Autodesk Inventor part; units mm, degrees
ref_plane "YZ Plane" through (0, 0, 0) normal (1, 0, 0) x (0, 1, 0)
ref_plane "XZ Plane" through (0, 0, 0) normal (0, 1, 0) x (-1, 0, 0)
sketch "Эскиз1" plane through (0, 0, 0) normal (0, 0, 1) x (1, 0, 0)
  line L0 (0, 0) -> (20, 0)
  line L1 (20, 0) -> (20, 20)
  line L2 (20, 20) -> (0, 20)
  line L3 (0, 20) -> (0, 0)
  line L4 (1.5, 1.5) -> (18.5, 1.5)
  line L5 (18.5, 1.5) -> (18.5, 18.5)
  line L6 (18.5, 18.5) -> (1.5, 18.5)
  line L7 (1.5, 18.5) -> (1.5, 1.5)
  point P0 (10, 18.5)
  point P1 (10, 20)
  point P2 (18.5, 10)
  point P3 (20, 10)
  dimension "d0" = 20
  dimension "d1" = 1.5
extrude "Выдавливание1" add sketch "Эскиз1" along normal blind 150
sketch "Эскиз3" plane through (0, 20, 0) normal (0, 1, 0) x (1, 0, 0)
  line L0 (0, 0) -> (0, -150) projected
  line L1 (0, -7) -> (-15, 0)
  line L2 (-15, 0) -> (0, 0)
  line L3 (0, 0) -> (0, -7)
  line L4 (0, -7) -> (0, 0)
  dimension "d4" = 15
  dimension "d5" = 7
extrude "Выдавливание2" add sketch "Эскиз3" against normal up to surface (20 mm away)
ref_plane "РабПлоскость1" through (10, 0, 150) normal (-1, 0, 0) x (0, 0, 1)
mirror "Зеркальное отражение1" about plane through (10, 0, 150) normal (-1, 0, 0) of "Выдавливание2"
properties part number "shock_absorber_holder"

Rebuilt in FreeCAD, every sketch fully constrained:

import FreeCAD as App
import Part
import Sketcher
from FreeCAD import Vector
Q = App.Units.Quantity

doc = App.newDocument("Part")
body = doc.addObject("PartDesign::Body", "Body")

# Sketch on XY plane
sketch1 = body.newObject("Sketcher::SketchObject", "Sketch")
sketch1.AttachmentSupport = (doc.getObject("XY_Plane"), [""])
sketch1.MapMode = "FlatFace"
sketch1.addGeometry([
    Part.LineSegment(Vector(0, 20, 0), Vector(0, 0, 0)),  # 0
    Part.LineSegment(Vector(0, 0, 0), Vector(20, 0, 0)),  # 1
    Part.LineSegment(Vector(20, 0, 0), Vector(20, 20, 0)),  # 2
    Part.LineSegment(Vector(20, 20, 0), Vector(0, 20, 0)),  # 3
    Part.LineSegment(Vector(18.5, 1.5, 0), Vector(1.5, 1.5, 0)),  # 4
    Part.LineSegment(Vector(1.5, 1.5, 0), Vector(1.5, 18.5, 0)),  # 5
    Part.LineSegment(Vector(1.5, 18.5, 0), Vector(18.5, 18.5, 0)),  # 6
    Part.LineSegment(Vector(18.5, 18.5, 0), Vector(18.5, 1.5, 0)),  # 7
], False)
sketch1.addConstraint([
    Sketcher.Constraint("Coincident", 0, 2, 1, 1),
    Sketcher.Constraint("Coincident", 1, 2, 2, 1),
    Sketcher.Constraint("Coincident", 2, 2, 3, 1),
    Sketcher.Constraint("Coincident", 3, 2, 0, 1),
    Sketcher.Constraint("Coincident", 4, 2, 5, 1),
    Sketcher.Constraint("Coincident", 5, 2, 6, 1),
    Sketcher.Constraint("Coincident", 6, 2, 7, 1),
    Sketcher.Constraint("Coincident", 7, 2, 4, 1),
    Sketcher.Constraint("Vertical", 0),
    Sketcher.Constraint("Horizontal", 1),
    Sketcher.Constraint("Vertical", 2),
    Sketcher.Constraint("Horizontal", 3),
    Sketcher.Constraint("Horizontal", 4),
    Sketcher.Constraint("Vertical", 5),
    Sketcher.Constraint("Horizontal", 6),
    Sketcher.Constraint("Vertical", 7),
    Sketcher.Constraint("Coincident", 0, 2, -1, 1),
    Sketcher.Constraint("Equal", 3, 0),
    Sketcher.Constraint("Equal", 6, 5),
    Sketcher.Constraint("DistanceX", 1, 1, 1, 2, Q("20 mm")),
    Sketcher.Constraint("DistanceX", -1, 1, 4, 2, Q("1.5 mm")),
    Sketcher.Constraint("DistanceY", -1, 1, 4, 2, Q("1.5 mm")),
    Sketcher.Constraint("DistanceY", 5, 2, 3, 2, Q("1.5 mm")),
])
pad1 = body.newObject("PartDesign::Pad", "Pad")
pad1.Profile = sketch1
pad1.Length = 150

# Sketch on XZ plane
sketch2 = body.newObject("Sketcher::SketchObject", "Sketch001")
sketch2.AttachmentSupport = (doc.getObject("XZ_Plane"), [""])
sketch2.MapMode = "FlatFace"
sketch2.AttachmentOffset = App.Placement(Vector(0, 0, -20), App.Rotation())
sketch2.addGeometry([
    Part.LineSegment(Vector(0, 7, 0), Vector(0, 0, 0)),
    Part.LineSegment(Vector(0, 0, 0), Vector(-15, 0, 0)),
    Part.LineSegment(Vector(-15, 0, 0), Vector(0, 7, 0)),
], False)
sketch2.addConstraint([
    Sketcher.Constraint("Coincident", 0, 2, 1, 1),
    Sketcher.Constraint("Coincident", 1, 2, 2, 1),
    Sketcher.Constraint("Coincident", 2, 2, 0, 1),
    Sketcher.Constraint("Vertical", 0),
    Sketcher.Constraint("Horizontal", 1),
    Sketcher.Constraint("Coincident", 0, 2, -1, 1),
    Sketcher.Constraint("DistanceX", 1, 2, 1, 1, Q("15 mm")),
    Sketcher.Constraint("DistanceY", 0, 2, 0, 1, Q("7 mm")),
])
pad2 = body.newObject("PartDesign::Pad", "Pad001")
pad2.Profile = sketch2
pad2.Length = 20
doc.recompute()

datumplane = body.newObject("PartDesign::Plane", "DatumPlane")
datumplane.AttachmentSupport = (doc.getObject("YZ_Plane"), [""])
datumplane.MapMode = "FlatFace"
datumplane.AttachmentOffset = App.Placement(Vector(0, 0, 10), App.Rotation())
mirrored = body.newObject("PartDesign::Mirrored", "Mirrored")
mirrored.Originals = [pad2]
mirrored.MirrorPlane = (datumplane, [""])
body.Tip = mirrored

doc.recompute()
